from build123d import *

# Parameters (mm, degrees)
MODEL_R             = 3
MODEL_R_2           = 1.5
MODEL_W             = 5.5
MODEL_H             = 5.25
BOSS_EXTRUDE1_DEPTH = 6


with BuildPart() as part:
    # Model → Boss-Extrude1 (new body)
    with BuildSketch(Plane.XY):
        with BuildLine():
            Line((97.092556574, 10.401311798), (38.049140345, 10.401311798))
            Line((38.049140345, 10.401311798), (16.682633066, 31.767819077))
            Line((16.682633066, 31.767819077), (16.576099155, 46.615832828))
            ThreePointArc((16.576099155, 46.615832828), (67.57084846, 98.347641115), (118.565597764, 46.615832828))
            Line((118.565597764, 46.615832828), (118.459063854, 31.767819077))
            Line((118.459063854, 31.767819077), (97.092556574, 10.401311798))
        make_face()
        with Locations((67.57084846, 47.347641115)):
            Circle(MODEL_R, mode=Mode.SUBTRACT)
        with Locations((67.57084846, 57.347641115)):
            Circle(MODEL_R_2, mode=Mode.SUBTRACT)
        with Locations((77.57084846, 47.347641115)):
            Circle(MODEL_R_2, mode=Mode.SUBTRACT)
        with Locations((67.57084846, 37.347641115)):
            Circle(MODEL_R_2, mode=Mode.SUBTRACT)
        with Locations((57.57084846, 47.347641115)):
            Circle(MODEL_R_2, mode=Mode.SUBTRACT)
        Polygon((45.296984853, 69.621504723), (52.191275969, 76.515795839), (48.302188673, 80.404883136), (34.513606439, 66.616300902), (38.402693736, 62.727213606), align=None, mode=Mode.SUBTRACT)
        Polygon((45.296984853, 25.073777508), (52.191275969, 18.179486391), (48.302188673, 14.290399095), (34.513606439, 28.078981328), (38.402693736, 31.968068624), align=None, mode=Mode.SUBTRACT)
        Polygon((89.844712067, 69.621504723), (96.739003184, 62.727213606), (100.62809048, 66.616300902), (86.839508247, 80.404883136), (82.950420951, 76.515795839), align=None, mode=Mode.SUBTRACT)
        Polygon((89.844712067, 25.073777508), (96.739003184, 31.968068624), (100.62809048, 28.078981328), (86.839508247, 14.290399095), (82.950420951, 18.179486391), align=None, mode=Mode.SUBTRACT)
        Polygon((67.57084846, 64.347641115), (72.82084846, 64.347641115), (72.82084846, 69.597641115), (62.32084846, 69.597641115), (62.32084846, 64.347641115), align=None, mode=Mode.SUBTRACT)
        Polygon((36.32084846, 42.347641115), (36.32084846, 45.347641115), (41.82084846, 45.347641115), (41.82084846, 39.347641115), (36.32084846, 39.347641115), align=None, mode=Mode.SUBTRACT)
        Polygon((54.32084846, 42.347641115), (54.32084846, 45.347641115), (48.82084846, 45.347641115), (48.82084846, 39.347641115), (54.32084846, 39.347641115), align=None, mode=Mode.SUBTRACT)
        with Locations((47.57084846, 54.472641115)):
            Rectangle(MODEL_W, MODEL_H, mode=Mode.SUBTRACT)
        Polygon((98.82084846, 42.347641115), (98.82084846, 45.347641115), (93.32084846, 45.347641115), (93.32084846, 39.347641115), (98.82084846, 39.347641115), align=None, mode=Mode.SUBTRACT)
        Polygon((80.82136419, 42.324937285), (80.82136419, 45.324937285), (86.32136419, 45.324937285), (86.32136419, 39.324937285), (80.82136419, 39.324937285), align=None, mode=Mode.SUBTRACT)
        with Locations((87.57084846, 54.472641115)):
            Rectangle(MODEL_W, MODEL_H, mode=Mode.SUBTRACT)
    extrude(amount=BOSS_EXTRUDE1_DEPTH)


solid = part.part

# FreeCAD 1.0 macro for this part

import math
import FreeCAD as App
import Part
import Sketcher
from FreeCAD import Vector
Q = App.Units.Quantity

doc = App.newDocument("Part")
body = doc.addObject("PartDesign::Body", "Body")

# Sketch on XY plane
sketch1 = body.newObject("Sketcher::SketchObject", "Sketch")
sketch1.AttachmentSupport = (doc.getObject("XY_Plane"), [""])
sketch1.MapMode = "FlatFace"
sketch1.addGeometry(Part.LineSegment(Vector(38.04914, 10.401312, 0), Vector(97.092557, 10.401312, 0)), False)
sketch1.addGeometry(Part.LineSegment(Vector(97.092557, 10.401312, 0), Vector(118.459064, 31.767819, 0)), False)
sketch1.addGeometry(Part.LineSegment(Vector(118.459064, 31.767819, 0), Vector(118.565598, 46.615833, 0)), False)
sketch1.addGeometry(Part.ArcOfCircle(Part.Circle(Vector(67.570848, 47.347641, 0), Vector(0, 0, 1), 51), math.radians(-0.822176), math.radians(180.822176)), False)
sketch1.addGeometry(Part.LineSegment(Vector(16.576099, 46.615833, 0), Vector(16.682633, 31.767819, 0)), False)
sketch1.addGeometry(Part.LineSegment(Vector(16.682633, 31.767819, 0), Vector(38.04914, 10.401312, 0)), False)
sketch1.addGeometry(Part.LineSegment(Vector(89.844712, 25.073778, 0), Vector(96.739003, 31.968069, 0)), False)
sketch1.addGeometry(Part.LineSegment(Vector(96.739003, 31.968069, 0), Vector(100.62809, 28.078981, 0)), False)
sketch1.addGeometry(Part.LineSegment(Vector(100.62809, 28.078981, 0), Vector(86.839508, 14.290399, 0)), False)
sketch1.addGeometry(Part.LineSegment(Vector(86.839508, 14.290399, 0), Vector(82.950421, 18.179486, 0)), False)
sketch1.addGeometry(Part.LineSegment(Vector(82.950421, 18.179486, 0), Vector(89.844712, 25.073778, 0)), False)
sketch1.addGeometry(Part.LineSegment(Vector(98.820848, 39.347641, 0), Vector(93.320848, 39.347641, 0)), False)
sketch1.addGeometry(Part.LineSegment(Vector(93.320848, 39.347641, 0), Vector(93.320848, 45.347641, 0)), False)
sketch1.addGeometry(Part.LineSegment(Vector(93.320848, 45.347641, 0), Vector(98.820848, 45.347641, 0)), False)
sketch1.addGeometry(Part.LineSegment(Vector(98.820848, 45.347641, 0), Vector(98.820848, 39.347641, 0)), False)
sketch1.addGeometry(Part.Circle(Vector(67.570848, 37.347641, 0), Vector(0, 0, 1), 1.5), False)
sketch1.addGeometry(Part.LineSegment(Vector(80.821364, 45.324937, 0), Vector(86.321364, 45.324937, 0)), False)
sketch1.addGeometry(Part.LineSegment(Vector(86.321364, 45.324937, 0), Vector(86.321364, 39.324937, 0)), False)
sketch1.addGeometry(Part.LineSegment(Vector(86.321364, 39.324937, 0), Vector(80.821364, 39.324937, 0)), False)
sketch1.addGeometry(Part.LineSegment(Vector(80.821364, 39.324937, 0), Vector(80.821364, 45.324937, 0)), False)
sketch1.addGeometry(Part.Circle(Vector(77.570848, 47.347641, 0), Vector(0, 0, 1), 1.5), False)
sketch1.addGeometry(Part.Circle(Vector(67.570848, 47.347641, 0), Vector(0, 0, 1), 3), False)
sketch1.addGeometry(Part.LineSegment(Vector(45.296985, 25.073778, 0), Vector(52.191276, 18.179486, 0)), False)
sketch1.addGeometry(Part.LineSegment(Vector(52.191276, 18.179486, 0), Vector(48.302189, 14.290399, 0)), False)
sketch1.addGeometry(Part.LineSegment(Vector(48.302189, 14.290399, 0), Vector(34.513606, 28.078981, 0)), False)
sketch1.addGeometry(Part.LineSegment(Vector(34.513606, 28.078981, 0), Vector(38.402694, 31.968069, 0)), False)
sketch1.addGeometry(Part.LineSegment(Vector(38.402694, 31.968069, 0), Vector(45.296985, 25.073778, 0)), False)
sketch1.addGeometry(Part.LineSegment(Vector(54.320848, 39.347641, 0), Vector(48.820848, 39.347641, 0)), False)
sketch1.addGeometry(Part.LineSegment(Vector(48.820848, 39.347641, 0), Vector(48.820848, 45.347641, 0)), False)
sketch1.addGeometry(Part.LineSegment(Vector(48.820848, 45.347641, 0), Vector(54.320848, 45.347641, 0)), False)
sketch1.addGeometry(Part.LineSegment(Vector(54.320848, 45.347641, 0), Vector(54.320848, 39.347641, 0)), False)
sketch1.addGeometry(Part.Circle(Vector(57.570848, 47.347641, 0), Vector(0, 0, 1), 1.5), False)
sketch1.addGeometry(Part.LineSegment(Vector(36.320848, 45.347641, 0), Vector(41.820848, 45.347641, 0)), False)
sketch1.addGeometry(Part.LineSegment(Vector(41.820848, 45.347641, 0), Vector(41.820848, 39.347641, 0)), False)
sketch1.addGeometry(Part.LineSegment(Vector(41.820848, 39.347641, 0), Vector(36.320848, 39.347641, 0)), False)
sketch1.addGeometry(Part.LineSegment(Vector(36.320848, 39.347641, 0), Vector(36.320848, 45.347641, 0)), False)
sketch1.addGeometry(Part.LineSegment(Vector(84.820848, 51.847641, 0), Vector(84.820848, 57.097641, 0)), False)
sketch1.addGeometry(Part.LineSegment(Vector(84.820848, 57.097641, 0), Vector(90.320848, 57.097641, 0)), False)
sketch1.addGeometry(Part.LineSegment(Vector(90.320848, 57.097641, 0), Vector(90.320848, 51.847641, 0)), False)
sketch1.addGeometry(Part.LineSegment(Vector(90.320848, 51.847641, 0), Vector(84.820848, 51.847641, 0)), False)
sketch1.addGeometry(Part.Circle(Vector(67.570848, 57.347641, 0), Vector(0, 0, 1), 1.5), False)
sketch1.addGeometry(Part.LineSegment(Vector(82.950421, 76.515796, 0), Vector(86.839508, 80.404883, 0)), False)
sketch1.addGeometry(Part.LineSegment(Vector(86.839508, 80.404883, 0), Vector(100.62809, 66.616301, 0)), False)
sketch1.addGeometry(Part.LineSegment(Vector(100.62809, 66.616301, 0), Vector(96.739003, 62.727214, 0)), False)
sketch1.addGeometry(Part.LineSegment(Vector(96.739003, 62.727214, 0), Vector(82.950421, 76.515796, 0)), False)
sketch1.addGeometry(Part.LineSegment(Vector(62.320848, 64.347641, 0), Vector(62.320848, 69.597641, 0)), False)
sketch1.addGeometry(Part.LineSegment(Vector(62.320848, 69.597641, 0), Vector(72.820848, 69.597641, 0)), False)
sketch1.addGeometry(Part.LineSegment(Vector(72.820848, 69.597641, 0), Vector(72.820848, 64.347641, 0)), False)
sketch1.addGeometry(Part.LineSegment(Vector(72.820848, 64.347641, 0), Vector(62.320848, 64.347641, 0)), False)
sketch1.addGeometry(Part.LineSegment(Vector(44.820848, 51.847641, 0), Vector(44.820848, 57.097641, 0)), False)
sketch1.addGeometry(Part.LineSegment(Vector(44.820848, 57.097641, 0), Vector(50.320848, 57.097641, 0)), False)
sketch1.addGeometry(Part.LineSegment(Vector(50.320848, 57.097641, 0), Vector(50.320848, 51.847641, 0)), False)
sketch1.addGeometry(Part.LineSegment(Vector(50.320848, 51.847641, 0), Vector(44.820848, 51.847641, 0)), False)
sketch1.addGeometry(Part.LineSegment(Vector(38.402694, 62.727214, 0), Vector(34.513606, 66.616301, 0)), False)
sketch1.addGeometry(Part.LineSegment(Vector(34.513606, 66.616301, 0), Vector(48.302189, 80.404883, 0)), False)
sketch1.addGeometry(Part.LineSegment(Vector(48.302189, 80.404883, 0), Vector(52.191276, 76.515796, 0)), False)
sketch1.addGeometry(Part.LineSegment(Vector(52.191276, 76.515796, 0), Vector(38.402694, 62.727214, 0)), False)
sketch1.addConstraint(Sketcher.Constraint("Coincident", 0, 2, 1, 1))
sketch1.addConstraint(Sketcher.Constraint("Coincident", 1, 2, 2, 1))
sketch1.addConstraint(Sketcher.Constraint("Coincident", 2, 2, 3, 1))
sketch1.addConstraint(Sketcher.Constraint("Coincident", 3, 2, 4, 1))
sketch1.addConstraint(Sketcher.Constraint("Coincident", 4, 2, 5, 1))
sketch1.addConstraint(Sketcher.Constraint("Coincident", 5, 2, 0, 1))
sketch1.addConstraint(Sketcher.Constraint("Coincident", 6, 2, 7, 1))
sketch1.addConstraint(Sketcher.Constraint("Coincident", 7, 2, 8, 1))
sketch1.addConstraint(Sketcher.Constraint("Coincident", 8, 2, 9, 1))
sketch1.addConstraint(Sketcher.Constraint("Coincident", 9, 2, 10, 1))
sketch1.addConstraint(Sketcher.Constraint("Coincident", 10, 2, 6, 1))
sketch1.addConstraint(Sketcher.Constraint("Coincident", 11, 2, 12, 1))
sketch1.addConstraint(Sketcher.Constraint("Coincident", 12, 2, 13, 1))
sketch1.addConstraint(Sketcher.Constraint("Coincident", 13, 2, 14, 1))
sketch1.addConstraint(Sketcher.Constraint("Coincident", 14, 2, 11, 1))
sketch1.addConstraint(Sketcher.Constraint("Coincident", 16, 2, 17, 1))
sketch1.addConstraint(Sketcher.Constraint("Coincident", 17, 2, 18, 1))
sketch1.addConstraint(Sketcher.Constraint("Coincident", 18, 2, 19, 1))
sketch1.addConstraint(Sketcher.Constraint("Coincident", 19, 2, 16, 1))
sketch1.addConstraint(Sketcher.Constraint("Coincident", 22, 2, 23, 1))
sketch1.addConstraint(Sketcher.Constraint("Coincident", 23, 2, 24, 1))
sketch1.addConstraint(Sketcher.Constraint("Coincident", 24, 2, 25, 1))
sketch1.addConstraint(Sketcher.Constraint("Coincident", 25, 2, 26, 1))
sketch1.addConstraint(Sketcher.Constraint("Coincident", 26, 2, 22, 1))
sketch1.addConstraint(Sketcher.Constraint("Coincident", 27, 2, 28, 1))
sketch1.addConstraint(Sketcher.Constraint("Coincident", 28, 2, 29, 1))
sketch1.addConstraint(Sketcher.Constraint("Coincident", 29, 2, 30, 1))
sketch1.addConstraint(Sketcher.Constraint("Coincident", 30, 2, 27, 1))
sketch1.addConstraint(Sketcher.Constraint("Coincident", 32, 2, 33, 1))
sketch1.addConstraint(Sketcher.Constraint("Coincident", 33, 2, 34, 1))
sketch1.addConstraint(Sketcher.Constraint("Coincident", 34, 2, 35, 1))
sketch1.addConstraint(Sketcher.Constraint("Coincident", 35, 2, 32, 1))
sketch1.addConstraint(Sketcher.Constraint("Coincident", 36, 2, 37, 1))
sketch1.addConstraint(Sketcher.Constraint("Coincident", 37, 2, 38, 1))
sketch1.addConstraint(Sketcher.Constraint("Coincident", 38, 2, 39, 1))
sketch1.addConstraint(Sketcher.Constraint("Coincident", 39, 2, 36, 1))
sketch1.addConstraint(Sketcher.Constraint("Coincident", 41, 2, 42, 1))
sketch1.addConstraint(Sketcher.Constraint("Coincident", 42, 2, 43, 1))
sketch1.addConstraint(Sketcher.Constraint("Coincident", 43, 2, 44, 1))
sketch1.addConstraint(Sketcher.Constraint("Coincident", 44, 2, 41, 1))
sketch1.addConstraint(Sketcher.Constraint("Coincident", 45, 2, 46, 1))
sketch1.addConstraint(Sketcher.Constraint("Coincident", 46, 2, 47, 1))
sketch1.addConstraint(Sketcher.Constraint("Coincident", 47, 2, 48, 1))
sketch1.addConstraint(Sketcher.Constraint("Coincident", 48, 2, 45, 1))
sketch1.addConstraint(Sketcher.Constraint("Coincident", 49, 2, 50, 1))
sketch1.addConstraint(Sketcher.Constraint("Coincident", 50, 2, 51, 1))
sketch1.addConstraint(Sketcher.Constraint("Coincident", 51, 2, 52, 1))
sketch1.addConstraint(Sketcher.Constraint("Coincident", 52, 2, 49, 1))
sketch1.addConstraint(Sketcher.Constraint("Coincident", 53, 2, 54, 1))
sketch1.addConstraint(Sketcher.Constraint("Coincident", 54, 2, 55, 1))
sketch1.addConstraint(Sketcher.Constraint("Coincident", 55, 2, 56, 1))
sketch1.addConstraint(Sketcher.Constraint("Coincident", 56, 2, 53, 1))
sketch1.addConstraint(Sketcher.Constraint("Horizontal", 0))
sketch1.addConstraint(Sketcher.Constraint("Horizontal", 11))
sketch1.addConstraint(Sketcher.Constraint("Vertical", 12))
sketch1.addConstraint(Sketcher.Constraint("Horizontal", 13))
sketch1.addConstraint(Sketcher.Constraint("Vertical", 14))
sketch1.addConstraint(Sketcher.Constraint("Horizontal", 16))
sketch1.addConstraint(Sketcher.Constraint("Vertical", 17))
sketch1.addConstraint(Sketcher.Constraint("Horizontal", 18))
sketch1.addConstraint(Sketcher.Constraint("Vertical", 19))
sketch1.addConstraint(Sketcher.Constraint("Horizontal", 27))
sketch1.addConstraint(Sketcher.Constraint("Vertical", 28))
sketch1.addConstraint(Sketcher.Constraint("Horizontal", 29))
sketch1.addConstraint(Sketcher.Constraint("Vertical", 30))
sketch1.addConstraint(Sketcher.Constraint("Horizontal", 32))
sketch1.addConstraint(Sketcher.Constraint("Vertical", 33))
sketch1.addConstraint(Sketcher.Constraint("Horizontal", 34))
sketch1.addConstraint(Sketcher.Constraint("Vertical", 35))
sketch1.addConstraint(Sketcher.Constraint("Vertical", 36))
sketch1.addConstraint(Sketcher.Constraint("Horizontal", 37))
sketch1.addConstraint(Sketcher.Constraint("Vertical", 38))
sketch1.addConstraint(Sketcher.Constraint("Horizontal", 39))
sketch1.addConstraint(Sketcher.Constraint("Vertical", 45))
sketch1.addConstraint(Sketcher.Constraint("Horizontal", 46))
sketch1.addConstraint(Sketcher.Constraint("Vertical", 47))
sketch1.addConstraint(Sketcher.Constraint("Horizontal", 48))
sketch1.addConstraint(Sketcher.Constraint("Vertical", 49))
sketch1.addConstraint(Sketcher.Constraint("Horizontal", 50))
sketch1.addConstraint(Sketcher.Constraint("Vertical", 51))
sketch1.addConstraint(Sketcher.Constraint("Horizontal", 52))
sketch1.addConstraint(Sketcher.Constraint("Coincident", 21, 3, 3, 3))
sketch1.addConstraint(Sketcher.Constraint("Equal", 15, 20))
sketch1.addConstraint(Sketcher.Constraint("Equal", 20, 31))
sketch1.addConstraint(Sketcher.Constraint("Equal", 31, 40))
sketch1.addConstraint(Sketcher.Constraint("Perpendicular", 1, 5))
sketch1.addConstraint(Sketcher.Constraint("Perpendicular", 5, 6))
sketch1.addConstraint(Sketcher.Constraint("Perpendicular", 6, 7))
sketch1.addConstraint(Sketcher.Constraint("Perpendicular", 7, 8))
sketch1.addConstraint(Sketcher.Constraint("Perpendicular", 8, 9))
sketch1.addConstraint(Sketcher.Constraint("Perpendicular", 9, 10))
sketch1.addConstraint(Sketcher.Constraint("Perpendicular", 10, 22))
sketch1.addConstraint(Sketcher.Constraint("Perpendicular", 22, 23))
sketch1.addConstraint(Sketcher.Constraint("Perpendicular", 23, 24))
sketch1.addConstraint(Sketcher.Constraint("Perpendicular", 24, 25))
sketch1.addConstraint(Sketcher.Constraint("Perpendicular", 25, 26))
sketch1.addConstraint(Sketcher.Constraint("Perpendicular", 26, 41))
sketch1.addConstraint(Sketcher.Constraint("Perpendicular", 41, 42))
sketch1.addConstraint(Sketcher.Constraint("Perpendicular", 42, 43))
sketch1.addConstraint(Sketcher.Constraint("Perpendicular", 43, 44))
sketch1.addConstraint(Sketcher.Constraint("Parallel", 44, 53))
sketch1.addConstraint(Sketcher.Constraint("Perpendicular", 53, 54))
sketch1.addConstraint(Sketcher.Constraint("Perpendicular", 54, 55))
sketch1.addConstraint(Sketcher.Constraint("Perpendicular", 55, 56))
sketch1.addConstraint(Sketcher.Constraint("Horizontal", 3, 3, 20, 3))
sketch1.addConstraint(Sketcher.Constraint("Horizontal", 21, 3, 31, 3))
sketch1.addConstraint(Sketcher.Constraint("Horizontal", 2, 2, 3, 2))
sketch1.addConstraint(Sketcher.Constraint("Horizontal", 1, 2, 4, 2))
sketch1.addConstraint(Sketcher.Constraint("Horizontal", 9, 2, 22, 2))
sketch1.addConstraint(Sketcher.Constraint("Horizontal", 8, 2, 23, 2))
sketch1.addConstraint(Sketcher.Constraint("Horizontal", 7, 2, 24, 2))
sketch1.addConstraint(Sketcher.Constraint("Horizontal", 10, 2, 26, 2))
sketch1.addConstraint(Sketcher.Constraint("Horizontal", 14, 2, 27, 2))
sketch1.addConstraint(Sketcher.Constraint("Horizontal", 13, 2, 28, 2))
sketch1.addConstraint(Sketcher.Constraint("Horizontal", 29, 2, 32, 2))
sketch1.addConstraint(Sketcher.Constraint("Horizontal", 30, 2, 33, 2))
sketch1.addConstraint(Sketcher.Constraint("Horizontal", 37, 2, 49, 2))
sketch1.addConstraint(Sketcher.Constraint("Horizontal", 39, 2, 51, 2))
sketch1.addConstraint(Sketcher.Constraint("Horizontal", 42, 2, 53, 2))
sketch1.addConstraint(Sketcher.Constraint("Horizontal", 41, 2, 54, 2))
sketch1.addConstraint(Sketcher.Constraint("Horizontal", 44, 2, 55, 2))
sketch1.addConstraint(Sketcher.Constraint("Vertical", 3, 3, 15, 3))
sketch1.addConstraint(Sketcher.Constraint("Vertical", 21, 3, 40, 3))
sketch1.addConstraint(Sketcher.Constraint("Vertical", 8, 2, 41, 2))
sketch1.addConstraint(Sketcher.Constraint("Vertical", 7, 2, 42, 2))
sketch1.addConstraint(Sketcher.Constraint("Vertical", 6, 2, 43, 2))
sketch1.addConstraint(Sketcher.Constraint("Vertical", 24, 2, 53, 2))
sketch1.addConstraint(Sketcher.Constraint("Vertical", 23, 2, 54, 2))
sketch1.addConstraint(Sketcher.Constraint("Equal", 13, 16))
sketch1.addConstraint(Sketcher.Constraint("Equal", 18, 27))
sketch1.addConstraint(Sketcher.Constraint("Equal", 29, 32))
sketch1.addConstraint(Sketcher.Constraint("Equal", 34, 37))
sketch1.addConstraint(Sketcher.Constraint("Equal", 39, 50))
sketch1.addConstraint(Sketcher.Constraint("Equal", 14, 17))
sketch1.addConstraint(Sketcher.Constraint("Equal", 38, 45))
sketch1.addConstraint(Sketcher.Constraint("Equal", 2, 4))
sketch1.addConstraint(Sketcher.Constraint("Equal", 6, 10))
sketch1.addConstraint(Sketcher.Constraint("Diameter", 15, Q("3 mm")))
sketch1.addConstraint(Sketcher.Constraint("Diameter", 21, Q("6 mm")))
sketch1.addConstraint(Sketcher.Constraint("Radius", 3, Q("51 mm")))
sketch1.addConstraint(Sketcher.Constraint("DistanceY", 12, 1, 12, 2, Q("6 mm")))
sketch1.addConstraint(Sketcher.Constraint("DistanceX", 11, 2, 11, 1, Q("5.5 mm")))
sketch1.addConstraint(Sketcher.Constraint("DistanceX", 46, 1, 46, 2, Q("10.5 mm")))
sketch1.addConstraint(Sketcher.Constraint("DistanceY", 15, 3, 3, 3, Q("10 mm")))
sketch1.addConstraint(Sketcher.Constraint("DistanceX", 3, 3, 20, 3, Q("10 mm")))
sketch1.addConstraint(Sketcher.Constraint("DistanceX", 31, 3, 3, 3, Q("10 mm")))
sketch1.addConstraint(Sketcher.Constraint("DistanceY", 3, 3, 40, 3, Q("10 mm")))
sketch1.addConstraint(Sketcher.Constraint("DistanceY", 11, 2, 20, 3, Q("8 mm")))
sketch1.addConstraint(Sketcher.Constraint("DistanceX", 32, 2, 28, 2, Q("7 mm")))
sketch1.addConstraint(Sketcher.Constraint("DistanceX", 37, 2, 12, 2, Q("3 mm")))
sketch1.addConstraint(Sketcher.Constraint("DistanceX", 46, 2, 36, 2, Q("12 mm")))
sketch1.addConstraint(Sketcher.Constraint("DistanceY", 40, 3, 47, 2, Q("7 mm")))
sketch1.addConstraint(Sketcher.Constraint("DistanceX", 32, 2, 49, 2, Q("3 mm")))
sketch1.addConstraint(Sketcher.Constraint("DistanceX", 50, 2, 48, 2, Q("12 mm")))
sketch1.addConstraint(Sketcher.Constraint("Distance", 7, Q("5.5 mm")))
sketch1.addConstraint(Sketcher.Constraint("Distance", 8, Q("19.5 mm")))
sketch1.addConstraint(Sketcher.Constraint("DistanceY", 36, 1, 36, 2, Q("5.25 mm")))
sketch1.addConstraint(Sketcher.Constraint("DistanceY", 12, 2, 38, 2, Q("6.5 mm")))
sketch1.addConstraint(Sketcher.Constraint("DistanceX", 20, 3, 11, 2, Q("15.75 mm")))
sketch1.addConstraint(Sketcher.Constraint("DistanceX", -1, 1, 3, 2, Q("16.576099 mm")))
sketch1.addConstraint(Sketcher.Constraint("DistanceY", -1, 1, 8, 2, Q("14.290399 mm")))
sketch1.addConstraint(Sketcher.Constraint("DistanceY", -1, 1, 42, 2, Q("66.616301 mm")))
sketch1.addConstraint(Sketcher.Constraint("DistanceX", 0, 1, 0, 2, Q("59.043416 mm")))
sketch1.addConstraint(Sketcher.Constraint("DistanceX", -1, 1, 3, 3, Q("67.570848 mm")))
sketch1.addConstraint(Sketcher.Constraint("DistanceY", -1, 1, 3, 3, Q("47.347641 mm")))
sketch1.addConstraint(Sketcher.Constraint("DistanceY", -1, 1, 0, 2, Q("10.401312 mm")))
sketch1.addConstraint(Sketcher.Constraint("DistanceY", -1, 1, 1, 2, Q("31.767819 mm")))
sketch1.addConstraint(Sketcher.Constraint("DistanceX", -1, 1, 7, 2, Q("100.62809 mm")))
sketch1.addConstraint(Sketcher.Constraint("DistanceX", -1, 1, 23, 2, Q("48.302189 mm")))
sketch1.addConstraint(Sketcher.Constraint("DistanceX", -1, 1, 16, 2, Q("86.321364 mm")))
sketch1.addConstraint(Sketcher.Constraint("DistanceY", -1, 1, 16, 2, Q("45.324937 mm")))
pad1 = body.newObject("PartDesign::Pad", "Pad")
pad1.Profile = sketch1
pad1.Length = 6

doc.recompute()
